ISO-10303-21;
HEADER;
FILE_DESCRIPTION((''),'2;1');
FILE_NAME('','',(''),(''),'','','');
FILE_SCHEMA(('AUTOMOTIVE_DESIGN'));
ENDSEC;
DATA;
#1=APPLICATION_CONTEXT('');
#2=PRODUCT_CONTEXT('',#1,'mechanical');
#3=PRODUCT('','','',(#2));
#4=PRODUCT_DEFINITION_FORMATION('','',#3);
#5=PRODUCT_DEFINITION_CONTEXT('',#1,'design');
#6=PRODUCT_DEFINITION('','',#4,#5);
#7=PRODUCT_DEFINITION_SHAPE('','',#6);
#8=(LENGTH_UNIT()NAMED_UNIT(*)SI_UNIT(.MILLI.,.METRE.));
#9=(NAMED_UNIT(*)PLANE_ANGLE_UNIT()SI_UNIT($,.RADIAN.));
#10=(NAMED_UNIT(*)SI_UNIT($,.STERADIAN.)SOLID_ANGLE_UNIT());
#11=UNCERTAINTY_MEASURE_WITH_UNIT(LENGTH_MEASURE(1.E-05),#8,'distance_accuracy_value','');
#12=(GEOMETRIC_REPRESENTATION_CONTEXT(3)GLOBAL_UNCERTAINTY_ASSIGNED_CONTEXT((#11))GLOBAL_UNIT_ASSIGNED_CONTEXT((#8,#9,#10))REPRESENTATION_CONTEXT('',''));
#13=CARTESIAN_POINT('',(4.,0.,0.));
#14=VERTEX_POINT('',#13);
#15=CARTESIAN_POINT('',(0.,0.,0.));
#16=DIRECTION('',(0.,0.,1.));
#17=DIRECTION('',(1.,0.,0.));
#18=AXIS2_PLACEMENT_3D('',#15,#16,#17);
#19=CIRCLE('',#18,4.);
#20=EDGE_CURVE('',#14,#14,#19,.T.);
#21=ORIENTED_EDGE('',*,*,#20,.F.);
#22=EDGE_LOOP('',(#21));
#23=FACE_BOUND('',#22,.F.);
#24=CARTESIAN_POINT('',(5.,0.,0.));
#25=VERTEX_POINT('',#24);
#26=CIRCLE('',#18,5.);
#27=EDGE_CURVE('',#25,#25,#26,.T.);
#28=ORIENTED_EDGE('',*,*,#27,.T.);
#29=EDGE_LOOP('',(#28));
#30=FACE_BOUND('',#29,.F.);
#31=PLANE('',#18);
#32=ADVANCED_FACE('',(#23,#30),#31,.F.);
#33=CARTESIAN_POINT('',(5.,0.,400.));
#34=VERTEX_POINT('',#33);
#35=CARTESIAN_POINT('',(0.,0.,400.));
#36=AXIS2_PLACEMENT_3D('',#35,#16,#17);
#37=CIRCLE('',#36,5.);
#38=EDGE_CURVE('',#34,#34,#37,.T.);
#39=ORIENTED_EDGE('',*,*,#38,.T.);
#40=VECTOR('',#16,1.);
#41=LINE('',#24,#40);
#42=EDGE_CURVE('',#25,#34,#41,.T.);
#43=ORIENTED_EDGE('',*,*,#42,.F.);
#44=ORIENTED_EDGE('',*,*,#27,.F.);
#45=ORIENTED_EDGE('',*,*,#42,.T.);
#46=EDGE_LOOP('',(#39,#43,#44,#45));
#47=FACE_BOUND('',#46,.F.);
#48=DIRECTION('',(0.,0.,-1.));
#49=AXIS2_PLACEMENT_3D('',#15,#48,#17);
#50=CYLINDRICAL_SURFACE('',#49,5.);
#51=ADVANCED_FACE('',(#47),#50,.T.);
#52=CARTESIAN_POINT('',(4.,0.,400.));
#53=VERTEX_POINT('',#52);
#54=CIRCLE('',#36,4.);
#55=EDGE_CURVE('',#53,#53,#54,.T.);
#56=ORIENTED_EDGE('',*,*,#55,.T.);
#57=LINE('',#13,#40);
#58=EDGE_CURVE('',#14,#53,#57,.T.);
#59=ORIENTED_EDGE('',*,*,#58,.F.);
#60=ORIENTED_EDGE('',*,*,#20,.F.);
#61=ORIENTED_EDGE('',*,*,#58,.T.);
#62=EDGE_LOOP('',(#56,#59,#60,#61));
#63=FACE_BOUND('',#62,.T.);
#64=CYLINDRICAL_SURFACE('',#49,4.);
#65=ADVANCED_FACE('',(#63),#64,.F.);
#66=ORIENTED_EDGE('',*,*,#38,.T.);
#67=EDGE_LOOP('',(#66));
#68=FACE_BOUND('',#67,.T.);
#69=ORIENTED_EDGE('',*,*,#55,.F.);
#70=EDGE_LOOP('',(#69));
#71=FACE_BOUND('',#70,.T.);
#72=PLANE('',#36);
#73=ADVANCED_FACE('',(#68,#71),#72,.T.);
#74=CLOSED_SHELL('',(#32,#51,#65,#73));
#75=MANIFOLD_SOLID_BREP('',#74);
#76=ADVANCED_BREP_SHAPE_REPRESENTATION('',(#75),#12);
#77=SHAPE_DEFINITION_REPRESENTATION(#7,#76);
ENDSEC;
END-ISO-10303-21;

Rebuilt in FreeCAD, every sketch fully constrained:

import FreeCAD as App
import Part
import Sketcher

doc = App.newDocument("Part")
body = doc.addObject("PartDesign::Body", "Body")

# Sketch on XY plane
sketch1 = body.newObject("Sketcher::SketchObject", "Sketch")
sketch1.AttachmentSupport = (doc.getObject("XY_Plane"), [""])
sketch1.MapMode = "FlatFace"
sketch1.addGeometry([
    Part.Circle(App.Vector(0, 0, 0), App.Vector(0, 0, 1), 5),
    Part.Circle(App.Vector(0, 0, 0), App.Vector(0, 0, 1), 4),
], False)
sketch1.addConstraint([
    Sketcher.Constraint("Coincident", 0, 3, -1, 1),
    Sketcher.Constraint("Coincident", 1, 3, -1, 1),
    Sketcher.Constraint("Diameter", 0, 10.0),
    Sketcher.Constraint("Diameter", 1, 8.0),
])
pad1 = body.newObject("PartDesign::Pad", "Pad")
pad1.Profile = sketch1
pad1.Length = 400

doc.recompute()
